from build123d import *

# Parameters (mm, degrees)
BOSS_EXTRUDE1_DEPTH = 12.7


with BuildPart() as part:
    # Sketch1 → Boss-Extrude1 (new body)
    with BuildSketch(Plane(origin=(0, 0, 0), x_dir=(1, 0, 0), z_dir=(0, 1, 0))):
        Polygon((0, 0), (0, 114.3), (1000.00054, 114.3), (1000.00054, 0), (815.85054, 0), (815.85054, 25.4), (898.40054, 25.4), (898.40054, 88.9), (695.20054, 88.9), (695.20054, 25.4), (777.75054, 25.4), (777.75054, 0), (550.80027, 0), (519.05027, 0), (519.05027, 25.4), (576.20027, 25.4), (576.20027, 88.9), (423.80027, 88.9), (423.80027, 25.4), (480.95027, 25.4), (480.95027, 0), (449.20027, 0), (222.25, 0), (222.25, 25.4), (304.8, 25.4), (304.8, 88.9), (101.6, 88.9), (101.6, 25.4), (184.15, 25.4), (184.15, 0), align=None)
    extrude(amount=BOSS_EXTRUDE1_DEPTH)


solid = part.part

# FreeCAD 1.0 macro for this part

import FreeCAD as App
import Part
import Sketcher
from FreeCAD import Vector
Q = App.Units.Quantity


def add_polygon(sketch, points):
    """Adds a closed chain of lines whose ends are joined by coincident constraints."""
    first, n = sketch.GeometryCount, len(points)
    for a, b in zip(points, points[1:] + points[:1]):
        sketch.addGeometry(Part.LineSegment(App.Vector(*a, 0), App.Vector(*b, 0)), False)
    for i in range(n):
        sketch.addConstraint(Sketcher.Constraint("Coincident", first + i, 2, first + (i + 1) % n, 1))

doc = App.newDocument("Part")
body = doc.addObject("PartDesign::Body", "Body")

sketch1 = doc.addObject("Sketcher::SketchObject", "Sketch")
body.addObject(sketch1)
sketch1.AttachmentSupport = (doc.XZ_Plane, [""])
sketch1.MapMode = "FlatFace"
add_polygon(sketch1, [(0, -114.3), (0, 0), (184.15, 0), (184.15, -25.4), (101.6, -25.4), (101.6, -88.9), (304.8, -88.9), (304.8, -25.4), (222.25, -25.4), (222.25, 0), (480.95027, 0), (480.95027, -25.4), (423.80027, -25.4), (423.80027, -88.9), (576.20027, -88.9), (576.20027, -25.4), (519.05027, -25.4), (519.05027, 0), (777.75054, 0), (777.75054, -25.4), (695.20054, -25.4), (695.20054, -88.9), (898.40054, -88.9), (898.40054, -25.4), (815.85054, -25.4), (815.85054, 0), (1000.00054, 0), (1000.00054, -114.3)])
sketch1.addConstraint(Sketcher.Constraint("Vertical", 0))
sketch1.addConstraint(Sketcher.Constraint("Horizontal", 1))
sketch1.addConstraint(Sketcher.Constraint("Vertical", 2))
sketch1.addConstraint(Sketcher.Constraint("Horizontal", 3))
sketch1.addConstraint(Sketcher.Constraint("Vertical", 4))
sketch1.addConstraint(Sketcher.Constraint("Horizontal", 5))
sketch1.addConstraint(Sketcher.Constraint("Vertical", 6))
sketch1.addConstraint(Sketcher.Constraint("Horizontal", 7))
sketch1.addConstraint(Sketcher.Constraint("Vertical", 8))
sketch1.addConstraint(Sketcher.Constraint("Horizontal", 9))
sketch1.addConstraint(Sketcher.Constraint("Vertical", 10))
sketch1.addConstraint(Sketcher.Constraint("Horizontal", 11))
sketch1.addConstraint(Sketcher.Constraint("Vertical", 12))
sketch1.addConstraint(Sketcher.Constraint("Horizontal", 13))
sketch1.addConstraint(Sketcher.Constraint("Vertical", 14))
sketch1.addConstraint(Sketcher.Constraint("Horizontal", 15))
sketch1.addConstraint(Sketcher.Constraint("Vertical", 16))
sketch1.addConstraint(Sketcher.Constraint("Horizontal", 17))
sketch1.addConstraint(Sketcher.Constraint("Vertical", 18))
sketch1.addConstraint(Sketcher.Constraint("Horizontal", 19))
sketch1.addConstraint(Sketcher.Constraint("Vertical", 20))
sketch1.addConstraint(Sketcher.Constraint("Horizontal", 21))
sketch1.addConstraint(Sketcher.Constraint("Vertical", 22))
sketch1.addConstraint(Sketcher.Constraint("Horizontal", 23))
sketch1.addConstraint(Sketcher.Constraint("Vertical", 24))
sketch1.addConstraint(Sketcher.Constraint("Horizontal", 25))
sketch1.addConstraint(Sketcher.Constraint("Vertical", 26))
sketch1.addConstraint(Sketcher.Constraint("Horizontal", 27))
sketch1.addConstraint(Sketcher.Constraint("Coincident", 0, 2, -1, 1))
sketch1.addConstraint(Sketcher.Constraint("PointOnObject", 8, 2, -1))
sketch1.addConstraint(Sketcher.Constraint("PointOnObject", 16, 2, -1))
sketch1.addConstraint(Sketcher.Constraint("PointOnObject", 24, 2, -1))
sketch1.addConstraint(Sketcher.Constraint("Horizontal", 3, 2, 6, 2))
sketch1.addConstraint(Sketcher.Constraint("Horizontal", 7, 2, 10, 2))
sketch1.addConstraint(Sketcher.Constraint("Horizontal", 5, 2, 12, 2))
sketch1.addConstraint(Sketcher.Constraint("Horizontal", 11, 2, 14, 2))
sketch1.addConstraint(Sketcher.Constraint("Horizontal", 15, 2, 18, 2))
sketch1.addConstraint(Sketcher.Constraint("Horizontal", 13, 2, 20, 2))
sketch1.addConstraint(Sketcher.Constraint("Horizontal", 19, 2, 22, 2))
sketch1.addConstraint(Sketcher.Constraint("Equal", 3, 7))
sketch1.addConstraint(Sketcher.Constraint("Equal", 11, 15))
sketch1.addConstraint(Sketcher.Constraint("Equal", 9, 17))
sketch1.addConstraint(Sketcher.Constraint("Equal", 7, 19))
sketch1.addConstraint(Sketcher.Constraint("Equal", 5, 21))
sketch1.addConstraint(Sketcher.Constraint("Equal", 19, 23))
sketch1.addConstraint(Sketcher.Constraint("Equal", 1, 25))
sketch1.addConstraint(Sketcher.Constraint("DistanceX", 5, 1, 5, 2, Q("8 in")))
sketch1.addConstraint(Sketcher.Constraint("DistanceX", 13, 1, 13, 2, Q("6 in")))
sketch1.addConstraint(Sketcher.Constraint("DistanceY", 2, 2, 2, 1, Q("1 in")))
sketch1.addConstraint(Sketcher.Constraint("DistanceY", 0, 1, 0, 2, Q("4.5 in")))
sketch1.addConstraint(Sketcher.Constraint("DistanceY", 4, 2, 4, 1, Q("2.5 in")))
sketch1.addConstraint(Sketcher.Constraint("DistanceX", -1, 1, 3, 2, Q("4 in")))
sketch1.addConstraint(Sketcher.Constraint("DistanceX", 1, 1, 1, 2, Q("7.25 in")))
sketch1.addConstraint(Sketcher.Constraint("DistanceX", 11, 2, 11, 1, Q("2.25 in")))
sketch1.addConstraint(Sketcher.Constraint("DistanceX", 27, 2, 27, 1, Q("39.3701 in")))
pad1 = doc.addObject("PartDesign::Pad", "Pad")
body.addObject(pad1)
pad1.Profile = sketch1
pad1.Length = Q("0.5 in")
pad1.Reversed = True

doc.recompute()
